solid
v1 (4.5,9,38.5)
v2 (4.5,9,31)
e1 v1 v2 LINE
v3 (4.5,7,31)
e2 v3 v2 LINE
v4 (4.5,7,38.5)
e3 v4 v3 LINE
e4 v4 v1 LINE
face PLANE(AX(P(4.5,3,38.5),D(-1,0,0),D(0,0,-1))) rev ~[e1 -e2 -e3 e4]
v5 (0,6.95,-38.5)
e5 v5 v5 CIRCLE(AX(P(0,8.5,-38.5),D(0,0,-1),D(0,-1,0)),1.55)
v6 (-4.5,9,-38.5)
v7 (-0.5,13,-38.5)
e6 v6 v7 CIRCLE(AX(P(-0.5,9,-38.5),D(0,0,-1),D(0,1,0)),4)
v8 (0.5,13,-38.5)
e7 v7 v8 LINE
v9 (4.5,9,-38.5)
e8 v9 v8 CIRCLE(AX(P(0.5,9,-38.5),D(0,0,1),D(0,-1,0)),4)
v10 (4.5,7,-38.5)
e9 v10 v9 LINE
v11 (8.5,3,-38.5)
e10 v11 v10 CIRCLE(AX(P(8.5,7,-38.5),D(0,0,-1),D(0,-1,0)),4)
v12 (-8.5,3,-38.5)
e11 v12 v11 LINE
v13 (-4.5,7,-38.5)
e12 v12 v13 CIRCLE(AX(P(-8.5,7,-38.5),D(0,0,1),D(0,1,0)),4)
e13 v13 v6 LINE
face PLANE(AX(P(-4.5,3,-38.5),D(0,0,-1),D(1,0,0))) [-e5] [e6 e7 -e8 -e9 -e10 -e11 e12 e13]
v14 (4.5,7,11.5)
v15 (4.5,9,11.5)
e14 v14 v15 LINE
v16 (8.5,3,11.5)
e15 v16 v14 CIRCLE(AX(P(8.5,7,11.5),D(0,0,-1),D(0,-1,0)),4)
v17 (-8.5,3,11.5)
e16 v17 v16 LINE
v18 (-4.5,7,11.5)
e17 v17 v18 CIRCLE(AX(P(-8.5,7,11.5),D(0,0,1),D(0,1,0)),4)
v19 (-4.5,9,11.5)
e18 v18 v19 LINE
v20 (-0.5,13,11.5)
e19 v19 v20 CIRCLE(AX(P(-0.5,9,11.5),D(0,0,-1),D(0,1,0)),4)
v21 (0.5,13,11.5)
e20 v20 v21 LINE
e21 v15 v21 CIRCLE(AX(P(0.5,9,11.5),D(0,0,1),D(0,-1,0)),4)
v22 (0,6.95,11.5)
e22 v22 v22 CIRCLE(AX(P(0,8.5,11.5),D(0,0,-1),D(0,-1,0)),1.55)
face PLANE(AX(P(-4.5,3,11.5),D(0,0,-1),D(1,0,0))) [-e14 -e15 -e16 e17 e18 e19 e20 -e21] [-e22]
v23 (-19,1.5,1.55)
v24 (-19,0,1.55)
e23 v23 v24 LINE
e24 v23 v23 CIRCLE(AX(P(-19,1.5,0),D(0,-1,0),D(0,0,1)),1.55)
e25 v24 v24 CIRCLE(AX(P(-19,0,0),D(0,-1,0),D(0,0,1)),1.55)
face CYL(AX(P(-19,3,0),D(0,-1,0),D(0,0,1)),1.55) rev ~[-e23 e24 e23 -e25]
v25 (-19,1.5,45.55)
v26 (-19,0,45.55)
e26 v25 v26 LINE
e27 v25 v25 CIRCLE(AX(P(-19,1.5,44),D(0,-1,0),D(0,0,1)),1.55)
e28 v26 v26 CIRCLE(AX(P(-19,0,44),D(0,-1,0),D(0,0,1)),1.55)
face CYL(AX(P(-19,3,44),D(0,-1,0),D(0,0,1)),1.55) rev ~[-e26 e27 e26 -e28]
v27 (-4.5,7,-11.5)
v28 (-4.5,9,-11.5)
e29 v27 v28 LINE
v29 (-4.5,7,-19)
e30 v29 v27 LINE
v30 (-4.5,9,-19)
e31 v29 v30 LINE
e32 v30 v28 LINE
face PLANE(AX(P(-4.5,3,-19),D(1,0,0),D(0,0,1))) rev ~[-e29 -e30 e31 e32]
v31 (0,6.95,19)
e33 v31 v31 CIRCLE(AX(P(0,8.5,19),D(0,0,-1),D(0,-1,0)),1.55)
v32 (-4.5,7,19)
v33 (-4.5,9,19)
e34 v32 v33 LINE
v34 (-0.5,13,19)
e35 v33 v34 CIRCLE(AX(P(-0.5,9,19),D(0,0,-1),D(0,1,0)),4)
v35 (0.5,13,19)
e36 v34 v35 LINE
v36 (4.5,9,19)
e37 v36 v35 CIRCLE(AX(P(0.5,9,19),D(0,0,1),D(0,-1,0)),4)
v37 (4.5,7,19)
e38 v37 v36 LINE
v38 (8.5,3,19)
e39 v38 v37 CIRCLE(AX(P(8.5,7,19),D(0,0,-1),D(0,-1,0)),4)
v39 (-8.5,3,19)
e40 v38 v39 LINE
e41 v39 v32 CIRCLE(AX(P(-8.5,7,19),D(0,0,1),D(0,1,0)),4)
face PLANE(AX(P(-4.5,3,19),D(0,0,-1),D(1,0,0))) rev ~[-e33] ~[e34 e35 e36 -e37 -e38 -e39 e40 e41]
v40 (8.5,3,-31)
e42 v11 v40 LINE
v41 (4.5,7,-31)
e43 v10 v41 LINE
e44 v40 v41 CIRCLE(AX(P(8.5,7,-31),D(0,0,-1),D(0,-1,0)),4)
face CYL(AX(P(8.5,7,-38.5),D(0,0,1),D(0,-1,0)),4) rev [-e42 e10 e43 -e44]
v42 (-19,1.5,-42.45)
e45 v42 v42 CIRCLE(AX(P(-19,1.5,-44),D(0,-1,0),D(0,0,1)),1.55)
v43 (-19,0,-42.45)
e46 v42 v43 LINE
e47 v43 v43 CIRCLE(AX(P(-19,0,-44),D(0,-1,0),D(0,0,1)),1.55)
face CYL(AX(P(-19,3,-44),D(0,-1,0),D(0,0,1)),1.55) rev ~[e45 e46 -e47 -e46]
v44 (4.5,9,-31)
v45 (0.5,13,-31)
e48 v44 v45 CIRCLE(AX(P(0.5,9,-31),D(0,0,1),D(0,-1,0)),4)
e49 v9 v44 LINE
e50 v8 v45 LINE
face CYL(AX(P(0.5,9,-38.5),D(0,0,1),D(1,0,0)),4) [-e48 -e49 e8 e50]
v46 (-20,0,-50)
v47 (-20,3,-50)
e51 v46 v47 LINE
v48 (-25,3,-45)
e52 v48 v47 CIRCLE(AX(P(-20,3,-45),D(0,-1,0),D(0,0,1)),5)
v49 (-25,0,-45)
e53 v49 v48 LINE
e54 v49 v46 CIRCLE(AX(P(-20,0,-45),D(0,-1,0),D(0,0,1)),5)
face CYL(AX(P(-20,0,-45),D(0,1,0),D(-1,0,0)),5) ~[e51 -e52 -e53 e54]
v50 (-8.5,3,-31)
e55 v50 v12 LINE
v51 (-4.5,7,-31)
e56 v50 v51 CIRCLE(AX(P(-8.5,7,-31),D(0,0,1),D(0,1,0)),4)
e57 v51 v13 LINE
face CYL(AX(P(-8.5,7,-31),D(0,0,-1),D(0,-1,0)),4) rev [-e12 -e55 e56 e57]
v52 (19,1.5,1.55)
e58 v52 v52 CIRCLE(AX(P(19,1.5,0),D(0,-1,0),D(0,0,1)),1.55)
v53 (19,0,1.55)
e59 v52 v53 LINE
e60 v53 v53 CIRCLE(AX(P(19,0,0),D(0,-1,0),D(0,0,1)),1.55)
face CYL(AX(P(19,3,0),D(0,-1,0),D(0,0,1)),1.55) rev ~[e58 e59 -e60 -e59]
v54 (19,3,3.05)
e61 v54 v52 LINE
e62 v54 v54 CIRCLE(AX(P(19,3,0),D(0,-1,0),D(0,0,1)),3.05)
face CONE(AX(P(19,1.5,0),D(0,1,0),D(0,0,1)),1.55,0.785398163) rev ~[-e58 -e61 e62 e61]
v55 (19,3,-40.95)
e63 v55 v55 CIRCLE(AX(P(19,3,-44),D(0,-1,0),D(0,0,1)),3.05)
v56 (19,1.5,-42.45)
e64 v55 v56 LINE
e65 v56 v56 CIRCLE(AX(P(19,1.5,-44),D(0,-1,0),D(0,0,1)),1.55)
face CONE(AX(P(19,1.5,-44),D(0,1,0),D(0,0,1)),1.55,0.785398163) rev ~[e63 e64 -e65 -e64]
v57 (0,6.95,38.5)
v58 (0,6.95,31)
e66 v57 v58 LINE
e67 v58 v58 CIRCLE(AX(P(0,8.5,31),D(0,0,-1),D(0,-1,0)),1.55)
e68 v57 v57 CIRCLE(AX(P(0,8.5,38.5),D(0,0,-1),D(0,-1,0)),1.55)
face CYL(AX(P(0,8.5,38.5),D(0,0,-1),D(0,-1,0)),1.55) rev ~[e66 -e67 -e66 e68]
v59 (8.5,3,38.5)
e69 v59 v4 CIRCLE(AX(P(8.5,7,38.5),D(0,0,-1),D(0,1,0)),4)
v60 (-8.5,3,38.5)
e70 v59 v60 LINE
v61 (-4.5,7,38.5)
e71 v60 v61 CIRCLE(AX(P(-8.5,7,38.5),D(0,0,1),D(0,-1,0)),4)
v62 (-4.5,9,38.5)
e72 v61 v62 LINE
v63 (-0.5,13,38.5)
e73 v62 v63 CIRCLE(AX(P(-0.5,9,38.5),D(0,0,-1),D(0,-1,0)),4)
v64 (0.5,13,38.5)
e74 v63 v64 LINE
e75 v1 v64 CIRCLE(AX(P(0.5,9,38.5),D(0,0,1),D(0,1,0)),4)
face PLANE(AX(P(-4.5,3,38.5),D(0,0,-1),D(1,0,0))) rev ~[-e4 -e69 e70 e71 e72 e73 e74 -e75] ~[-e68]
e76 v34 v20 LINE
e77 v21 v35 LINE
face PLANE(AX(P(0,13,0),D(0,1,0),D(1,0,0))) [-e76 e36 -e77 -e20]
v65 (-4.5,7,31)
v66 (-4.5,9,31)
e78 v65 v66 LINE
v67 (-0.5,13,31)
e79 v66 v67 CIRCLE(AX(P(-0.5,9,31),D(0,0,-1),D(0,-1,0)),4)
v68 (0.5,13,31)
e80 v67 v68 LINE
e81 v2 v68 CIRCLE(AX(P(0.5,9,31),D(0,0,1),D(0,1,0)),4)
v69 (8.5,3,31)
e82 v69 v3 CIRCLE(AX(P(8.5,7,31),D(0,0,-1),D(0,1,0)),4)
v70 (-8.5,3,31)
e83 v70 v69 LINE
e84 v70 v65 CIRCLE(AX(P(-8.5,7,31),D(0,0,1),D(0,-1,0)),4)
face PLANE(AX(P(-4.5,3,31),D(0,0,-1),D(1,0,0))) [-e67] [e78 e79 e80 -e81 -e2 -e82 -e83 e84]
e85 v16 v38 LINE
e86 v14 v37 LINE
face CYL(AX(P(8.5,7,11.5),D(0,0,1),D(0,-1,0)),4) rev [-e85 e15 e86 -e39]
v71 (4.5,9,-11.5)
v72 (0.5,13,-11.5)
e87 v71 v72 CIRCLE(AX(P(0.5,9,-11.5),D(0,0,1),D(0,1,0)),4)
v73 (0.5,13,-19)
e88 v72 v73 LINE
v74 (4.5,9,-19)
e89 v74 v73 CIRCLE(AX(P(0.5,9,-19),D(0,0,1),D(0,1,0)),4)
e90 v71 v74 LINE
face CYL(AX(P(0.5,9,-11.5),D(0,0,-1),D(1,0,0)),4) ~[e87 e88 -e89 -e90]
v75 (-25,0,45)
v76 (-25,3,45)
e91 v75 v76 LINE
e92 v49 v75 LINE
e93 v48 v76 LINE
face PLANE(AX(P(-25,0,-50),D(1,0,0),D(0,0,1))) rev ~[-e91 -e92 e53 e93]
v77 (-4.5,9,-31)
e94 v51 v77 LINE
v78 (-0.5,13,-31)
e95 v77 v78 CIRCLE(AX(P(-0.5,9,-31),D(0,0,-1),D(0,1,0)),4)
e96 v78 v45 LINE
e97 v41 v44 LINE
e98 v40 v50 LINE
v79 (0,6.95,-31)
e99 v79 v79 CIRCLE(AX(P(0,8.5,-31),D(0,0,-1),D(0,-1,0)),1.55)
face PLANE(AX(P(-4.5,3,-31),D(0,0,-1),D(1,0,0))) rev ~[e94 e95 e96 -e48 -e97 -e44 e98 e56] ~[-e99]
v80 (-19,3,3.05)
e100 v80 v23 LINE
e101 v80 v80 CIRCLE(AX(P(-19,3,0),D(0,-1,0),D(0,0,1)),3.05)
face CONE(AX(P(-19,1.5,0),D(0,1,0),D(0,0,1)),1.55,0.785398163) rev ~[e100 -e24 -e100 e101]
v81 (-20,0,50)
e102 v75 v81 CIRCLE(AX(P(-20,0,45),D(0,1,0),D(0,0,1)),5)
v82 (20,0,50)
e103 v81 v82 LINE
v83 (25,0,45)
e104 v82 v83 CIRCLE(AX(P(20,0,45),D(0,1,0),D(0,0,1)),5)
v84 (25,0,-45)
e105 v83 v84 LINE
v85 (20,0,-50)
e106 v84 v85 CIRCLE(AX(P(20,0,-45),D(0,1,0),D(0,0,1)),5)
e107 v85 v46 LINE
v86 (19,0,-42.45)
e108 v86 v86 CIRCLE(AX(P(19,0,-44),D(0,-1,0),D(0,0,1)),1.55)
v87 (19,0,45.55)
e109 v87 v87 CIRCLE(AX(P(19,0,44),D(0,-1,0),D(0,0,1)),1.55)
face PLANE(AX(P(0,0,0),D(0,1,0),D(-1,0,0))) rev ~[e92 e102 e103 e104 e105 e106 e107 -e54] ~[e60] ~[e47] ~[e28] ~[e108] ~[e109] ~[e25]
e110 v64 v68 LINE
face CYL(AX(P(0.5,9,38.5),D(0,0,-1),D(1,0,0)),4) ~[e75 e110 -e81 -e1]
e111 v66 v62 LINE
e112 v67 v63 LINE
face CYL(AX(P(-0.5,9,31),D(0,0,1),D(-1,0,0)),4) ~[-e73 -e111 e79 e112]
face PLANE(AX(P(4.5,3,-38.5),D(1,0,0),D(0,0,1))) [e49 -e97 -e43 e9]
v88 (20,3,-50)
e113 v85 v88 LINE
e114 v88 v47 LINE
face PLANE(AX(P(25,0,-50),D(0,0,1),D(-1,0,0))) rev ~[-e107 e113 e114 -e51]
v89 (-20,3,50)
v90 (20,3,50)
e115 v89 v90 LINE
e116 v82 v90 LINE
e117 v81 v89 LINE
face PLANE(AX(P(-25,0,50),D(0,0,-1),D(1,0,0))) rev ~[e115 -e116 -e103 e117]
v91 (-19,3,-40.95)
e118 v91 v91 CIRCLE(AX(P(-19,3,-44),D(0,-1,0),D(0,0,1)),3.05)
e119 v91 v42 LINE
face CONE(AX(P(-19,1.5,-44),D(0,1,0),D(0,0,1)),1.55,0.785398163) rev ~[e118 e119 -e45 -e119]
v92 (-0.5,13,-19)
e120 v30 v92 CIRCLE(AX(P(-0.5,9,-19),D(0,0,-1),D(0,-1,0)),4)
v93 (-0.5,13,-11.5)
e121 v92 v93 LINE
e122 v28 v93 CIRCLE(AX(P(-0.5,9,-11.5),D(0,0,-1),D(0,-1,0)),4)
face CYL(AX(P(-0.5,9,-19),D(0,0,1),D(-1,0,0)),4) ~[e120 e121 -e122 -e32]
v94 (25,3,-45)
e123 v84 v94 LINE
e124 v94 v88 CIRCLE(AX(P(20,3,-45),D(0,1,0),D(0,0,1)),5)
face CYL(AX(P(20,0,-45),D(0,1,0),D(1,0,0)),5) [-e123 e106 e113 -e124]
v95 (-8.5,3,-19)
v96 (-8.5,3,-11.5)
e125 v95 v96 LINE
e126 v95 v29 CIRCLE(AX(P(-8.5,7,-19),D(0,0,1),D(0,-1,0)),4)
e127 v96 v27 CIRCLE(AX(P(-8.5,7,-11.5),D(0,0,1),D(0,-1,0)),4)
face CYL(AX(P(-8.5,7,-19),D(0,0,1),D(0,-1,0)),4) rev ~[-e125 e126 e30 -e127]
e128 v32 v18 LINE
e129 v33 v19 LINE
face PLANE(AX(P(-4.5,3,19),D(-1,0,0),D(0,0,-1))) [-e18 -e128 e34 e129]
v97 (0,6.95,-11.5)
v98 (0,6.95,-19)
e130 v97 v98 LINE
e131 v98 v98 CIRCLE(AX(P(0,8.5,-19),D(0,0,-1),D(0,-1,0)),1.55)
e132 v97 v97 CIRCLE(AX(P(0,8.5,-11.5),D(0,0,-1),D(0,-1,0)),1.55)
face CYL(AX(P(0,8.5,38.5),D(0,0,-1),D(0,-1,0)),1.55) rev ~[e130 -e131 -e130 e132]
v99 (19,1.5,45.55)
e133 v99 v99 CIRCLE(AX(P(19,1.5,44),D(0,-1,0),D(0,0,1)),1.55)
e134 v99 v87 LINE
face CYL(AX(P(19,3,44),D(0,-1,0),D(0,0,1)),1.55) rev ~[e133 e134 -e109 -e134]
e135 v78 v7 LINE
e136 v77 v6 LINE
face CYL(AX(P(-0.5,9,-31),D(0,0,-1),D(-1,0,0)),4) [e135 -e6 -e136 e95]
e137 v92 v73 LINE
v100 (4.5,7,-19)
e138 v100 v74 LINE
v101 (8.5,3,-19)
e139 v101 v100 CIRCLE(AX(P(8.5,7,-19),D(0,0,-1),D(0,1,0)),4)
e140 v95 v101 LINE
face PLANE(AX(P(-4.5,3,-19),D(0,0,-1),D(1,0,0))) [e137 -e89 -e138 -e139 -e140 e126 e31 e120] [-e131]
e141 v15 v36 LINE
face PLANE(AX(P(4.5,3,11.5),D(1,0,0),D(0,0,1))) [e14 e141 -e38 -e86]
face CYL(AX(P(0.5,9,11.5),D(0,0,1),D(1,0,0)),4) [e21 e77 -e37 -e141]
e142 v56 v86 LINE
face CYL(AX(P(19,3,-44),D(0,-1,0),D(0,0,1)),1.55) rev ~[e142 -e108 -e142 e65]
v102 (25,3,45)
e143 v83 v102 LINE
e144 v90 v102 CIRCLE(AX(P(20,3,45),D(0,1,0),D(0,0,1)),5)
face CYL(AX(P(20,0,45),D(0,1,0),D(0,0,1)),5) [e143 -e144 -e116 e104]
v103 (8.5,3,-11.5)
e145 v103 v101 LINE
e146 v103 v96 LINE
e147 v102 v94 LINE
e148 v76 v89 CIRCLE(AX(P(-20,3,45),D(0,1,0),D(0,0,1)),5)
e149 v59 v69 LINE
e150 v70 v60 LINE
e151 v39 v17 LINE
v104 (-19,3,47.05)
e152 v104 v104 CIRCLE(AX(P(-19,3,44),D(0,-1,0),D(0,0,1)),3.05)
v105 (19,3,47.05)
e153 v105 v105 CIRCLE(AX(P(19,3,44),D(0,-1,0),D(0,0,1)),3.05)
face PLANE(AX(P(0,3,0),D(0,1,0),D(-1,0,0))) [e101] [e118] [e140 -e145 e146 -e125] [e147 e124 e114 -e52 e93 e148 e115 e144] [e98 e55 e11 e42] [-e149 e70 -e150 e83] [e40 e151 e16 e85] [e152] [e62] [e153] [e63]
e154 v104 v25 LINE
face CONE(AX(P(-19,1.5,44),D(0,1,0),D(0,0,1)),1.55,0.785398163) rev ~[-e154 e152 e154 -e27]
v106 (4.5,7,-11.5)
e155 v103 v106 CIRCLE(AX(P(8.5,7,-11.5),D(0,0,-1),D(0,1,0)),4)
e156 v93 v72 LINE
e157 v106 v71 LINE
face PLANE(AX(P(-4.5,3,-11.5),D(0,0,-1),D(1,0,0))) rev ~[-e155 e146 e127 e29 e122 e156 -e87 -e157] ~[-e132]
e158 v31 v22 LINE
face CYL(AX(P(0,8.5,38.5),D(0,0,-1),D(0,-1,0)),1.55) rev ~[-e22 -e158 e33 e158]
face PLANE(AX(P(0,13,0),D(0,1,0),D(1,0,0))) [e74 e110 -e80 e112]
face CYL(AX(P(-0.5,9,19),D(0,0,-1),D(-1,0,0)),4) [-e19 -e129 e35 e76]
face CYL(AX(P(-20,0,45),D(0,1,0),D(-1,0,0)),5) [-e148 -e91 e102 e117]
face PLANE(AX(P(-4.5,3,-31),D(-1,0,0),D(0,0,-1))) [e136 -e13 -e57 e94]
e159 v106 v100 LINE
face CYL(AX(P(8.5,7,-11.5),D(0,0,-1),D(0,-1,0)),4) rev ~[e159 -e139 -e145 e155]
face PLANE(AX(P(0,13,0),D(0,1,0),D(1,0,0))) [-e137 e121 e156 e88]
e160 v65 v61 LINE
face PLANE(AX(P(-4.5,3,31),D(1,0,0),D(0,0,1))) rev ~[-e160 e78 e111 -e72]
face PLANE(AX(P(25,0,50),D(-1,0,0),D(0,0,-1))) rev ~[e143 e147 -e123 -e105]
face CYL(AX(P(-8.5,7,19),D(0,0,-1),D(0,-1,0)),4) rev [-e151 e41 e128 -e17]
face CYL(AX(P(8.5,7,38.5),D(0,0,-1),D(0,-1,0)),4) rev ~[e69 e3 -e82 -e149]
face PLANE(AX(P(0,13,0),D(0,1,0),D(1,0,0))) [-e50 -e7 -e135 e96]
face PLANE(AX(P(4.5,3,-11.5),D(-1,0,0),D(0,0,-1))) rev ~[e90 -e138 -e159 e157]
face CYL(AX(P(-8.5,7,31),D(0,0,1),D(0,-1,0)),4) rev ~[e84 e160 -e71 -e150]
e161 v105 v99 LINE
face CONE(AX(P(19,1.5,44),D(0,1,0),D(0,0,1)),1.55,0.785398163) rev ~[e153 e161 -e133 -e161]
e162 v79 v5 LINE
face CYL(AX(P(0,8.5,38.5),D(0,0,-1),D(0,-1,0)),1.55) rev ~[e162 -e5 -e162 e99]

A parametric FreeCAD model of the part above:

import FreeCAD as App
import Part
import Sketcher

V = App.Vector
Q = App.Units.Quantity


def edges_at(feature, points):
    """Names of the edges that pass closest to the given points."""
    edges = feature.Shape.Edges
    near = lambda p: min(range(len(edges)), key=lambda i: edges[i].distToShape(Part.Vertex(*p))[0])
    return sorted({f"Edge{near(p) + 1}" for p in points})

doc = App.newDocument("Part")
body = doc.addObject("PartDesign::Body", "Body")

# Sketch on XZ plane
sketch1 = body.newObject("Sketcher::SketchObject", "Sketch")
sketch1.AttachmentSupport = (doc.getObject("XZ_Plane"), [""])
sketch1.MapMode = "FlatFace"
sketch1.addGeometry([
    Part.LineSegment(V(-25, -50, 0), V(-25, 50, 0)),
    Part.LineSegment(V(-25, 50, 0), V(25, 50, 0)),
    Part.LineSegment(V(25, 50, 0), V(25, -50, 0)),
    Part.LineSegment(V(25, -50, 0), V(-25, -50, 0)),
], False)
sketch1.addConstraint([
    Sketcher.Constraint("Coincident", 0, 2, 1, 1),
    Sketcher.Constraint("Coincident", 1, 2, 2, 1),
    Sketcher.Constraint("Coincident", 2, 2, 3, 1),
    Sketcher.Constraint("Coincident", 3, 2, 0, 1),
    Sketcher.Constraint("Vertical", 0),
    Sketcher.Constraint("Horizontal", 1),
    Sketcher.Constraint("Vertical", 2),
    Sketcher.Constraint("Horizontal", 3),
    Sketcher.Constraint("Symmetric", 0, 2, 2, 2, -1, 1),
    Sketcher.Constraint("DistanceX", 1, 1, 1, 2, Q("50 mm")),
    Sketcher.Constraint("DistanceY", 0, 1, 0, 2, Q("100 mm")),
])
pad1 = body.newObject("PartDesign::Pad", "Pad")
pad1.Profile = sketch1
pad1.Length = 3
pad1.Reversed = True

# Sketch on XZ plane
sketch2 = body.newObject("Sketcher::SketchObject", "Sketch001")
sketch2.AttachmentSupport = (doc.getObject("XZ_Plane"), [""])
sketch2.MapMode = "FlatFace"
sketch2.AttachmentOffset = App.Placement(V(0, 0, -3), App.Rotation())
sketch2.addGeometry([
    Part.LineSegment(V(4, 31, 0), V(-4, 31, 0)),  # 0
    Part.LineSegment(V(-4, 31, 0), V(-4, 38, 0)),  # 1
    Part.LineSegment(V(-4, 38, 0), V(4, 38, 0)),  # 2
    Part.LineSegment(V(4, 38, 0), V(4, 31, 0)),  # 3
    Part.LineSegment(V(-4, 12, 0), V(-4, 19, 0)),  # 4
    Part.LineSegment(V(-4, 19, 0), V(4, 19, 0)),  # 5
    Part.LineSegment(V(4, 19, 0), V(4, 12, 0)),  # 6
    Part.LineSegment(V(4, 12, 0), V(-4, 12, 0)),  # 7
    Part.LineSegment(V(-4, -38, 0), V(-4, -31, 0)),  # 8
    Part.LineSegment(V(-4, -31, 0), V(4, -31, 0)),  # 9
    Part.LineSegment(V(4, -31, 0), V(4, -38, 0)),  # 10
    Part.LineSegment(V(4, -38, 0), V(-4, -38, 0)),  # 11
    Part.LineSegment(V(4, -19, 0), V(-4, -19, 0)),  # 12
    Part.LineSegment(V(-4, -19, 0), V(-4, -12, 0)),  # 13
    Part.LineSegment(V(-4, -12, 0), V(4, -12, 0)),  # 14
    Part.LineSegment(V(4, -12, 0), V(4, -19, 0)),  # 15
], False)
sketch2.addConstraint([
    Sketcher.Constraint("Coincident", 0, 2, 1, 1),
    Sketcher.Constraint("Coincident", 1, 2, 2, 1),
    Sketcher.Constraint("Coincident", 2, 2, 3, 1),
    Sketcher.Constraint("Coincident", 3, 2, 0, 1),
    Sketcher.Constraint("Coincident", 4, 2, 5, 1),
    Sketcher.Constraint("Coincident", 5, 2, 6, 1),
    Sketcher.Constraint("Coincident", 6, 2, 7, 1),
    Sketcher.Constraint("Coincident", 7, 2, 4, 1),
    Sketcher.Constraint("Coincident", 8, 2, 9, 1),
    Sketcher.Constraint("Coincident", 9, 2, 10, 1),
    Sketcher.Constraint("Coincident", 10, 2, 11, 1),
    Sketcher.Constraint("Coincident", 11, 2, 8, 1),
    Sketcher.Constraint("Coincident", 12, 2, 13, 1),
    Sketcher.Constraint("Coincident", 13, 2, 14, 1),
    Sketcher.Constraint("Coincident", 14, 2, 15, 1),
    Sketcher.Constraint("Coincident", 15, 2, 12, 1),
    Sketcher.Constraint("Horizontal", 0),
    Sketcher.Constraint("Vertical", 1),
    Sketcher.Constraint("Horizontal", 2),
    Sketcher.Constraint("Vertical", 3),
    Sketcher.Constraint("Vertical", 4),
    Sketcher.Constraint("Horizontal", 5),
    Sketcher.Constraint("Vertical", 6),
    Sketcher.Constraint("Horizontal", 7),
    Sketcher.Constraint("Vertical", 8),
    Sketcher.Constraint("Horizontal", 9),
    Sketcher.Constraint("Vertical", 10),
    Sketcher.Constraint("Horizontal", 11),
    Sketcher.Constraint("Horizontal", 12),
    Sketcher.Constraint("Vertical", 13),
    Sketcher.Constraint("Horizontal", 14),
    Sketcher.Constraint("Vertical", 15),
    Sketcher.Constraint("Symmetric", 3, 2, 8, 2, -1, 1),
    Sketcher.Constraint("Symmetric", 1, 2, 10, 2, -1, 1),
    Sketcher.Constraint("Symmetric", 5, 2, 12, 2, -1, 1),
    Sketcher.Constraint("Symmetric", 7, 2, 14, 2, -1, 1),
    Sketcher.Constraint("Vertical", 1, 2, 4, 2),
    Sketcher.Constraint("Vertical", 3, 2, 5, 2),
    Sketcher.Constraint("Vertical", 7, 2, 8, 2),
    Sketcher.Constraint("Equal", 3, 4),
    Sketcher.Constraint("DistanceX", 0, 2, 0, 1, Q("9 mm")),
    Sketcher.Constraint("DistanceY", 1, 1, 1, 2, Q("7.5 mm")),
    Sketcher.Constraint("DistanceY", 6, 2, 2, 2, Q("27 mm")),
    Sketcher.Constraint("DistanceY", 8, 2, 4, 2, Q("50 mm")),
])
pad2 = body.newObject("PartDesign::Pad", "Pad001")
pad2.Profile = sketch2
pad2.Length = 10
pad2.Reversed = True

# Sketch on XY plane
sketch3 = body.newObject("Sketcher::SketchObject", "Sketch002")
sketch3.AttachmentSupport = (doc.getObject("XY_Plane"), [""])
sketch3.MapMode = "FlatFace"
sketch3.AttachmentOffset = App.Placement(V(0, 0, 38.5), App.Rotation())
sketch3.addGeometry(Part.Circle(V(0, 8.5, 0), V(0, 0, 1), 1.6), False)
sketch3.addConstraint([
    Sketcher.Constraint("PointOnObject", 0, 3, -2),
    Sketcher.Constraint("Diameter", 0, Q("3.1 mm")),
    Sketcher.Constraint("DistanceY", -1, 1, 0, 3, Q("8.5 mm")),
])
doc.recompute()
hole = body.newObject("PartDesign::Hole", "Hole")
hole.Profile = sketch3
hole.ThreadType = "None"
hole.Diameter = 3.1
hole.DepthType = "ThroughAll"
doc.recompute()

fillet = body.newObject("PartDesign::Fillet", "Fillet")
fillet.Base = (hole, edges_at(hole, [
    (-4.5, 13, 34.75),
    (4.5, 13, 34.75),
    (-4.5, 13, 15.25),
    (4.5, 13, 15.25),
    (-4.5, 13, -15.25),
    (4.5, 13, -15.25),
    (-4.5, 13, -34.75),
    (4.5, 13, -34.75),
    (-4.5, 3, -34.75),
    (-4.5, 3, -15.25),
    (-4.5, 3, 15.25),
    (-4.5, 3, 34.75),
    (4.5, 3, 34.75),
    (4.5, 3, 15.25),
    (4.5, 3, -15.25),
    (4.5, 3, -34.75),
]))
fillet.Radius = 4

# Sketch on XZ plane
sketch4 = body.newObject("Sketcher::SketchObject", "Sketch003")
sketch4.AttachmentSupport = (doc.getObject("XZ_Plane"), [""])
sketch4.MapMode = "FlatFace"
sketch4.AttachmentOffset = App.Placement(V(0, 0, -3), App.Rotation())
sketch4.addGeometry([
    Part.Circle(V(-19, 44, 0), V(0, 0, 1), 1.6),  # 0
    Part.Circle(V(-19, 0, 0), V(0, 0, 1), 1.6),  # 1
    Part.Circle(V(-19, -44, 0), V(0, 0, 1), 1.6),  # 2
    Part.Circle(V(19, 44, 0), V(0, 0, 1), 1.6),  # 3
    Part.Circle(V(19, 0, 0), V(0, 0, 1), 1.6),  # 4
    Part.Circle(V(19, -44, 0), V(0, 0, 1), 1.6),  # 5
], False)
sketch4.addConstraint([
    Sketcher.Constraint("Equal", 0, 1),
    Sketcher.Constraint("Equal", 1, 2),
    Sketcher.Constraint("Equal", 2, 3),
    Sketcher.Constraint("Equal", 3, 4),
    Sketcher.Constraint("Equal", 4, 5),
    Sketcher.Constraint("Symmetric", 2, 3, 3, 3, -1, 1),
    Sketcher.Constraint("Symmetric", 1, 3, 4, 3, -1, 1),
    Sketcher.Constraint("Symmetric", 0, 3, 5, 3, -1, 1),
    Sketcher.Constraint("Symmetric", 0, 3, 3, 3, -2),
    Sketcher.Constraint("PointOnObject", 1, 3, -1),
    Sketcher.Constraint("Vertical", 0, 3, 1, 3),
    Sketcher.Constraint("Diameter", 0, Q("3.1 mm")),
    Sketcher.Constraint("DistanceX", 0, 3, -1, 1, Q("19 mm")),
    Sketcher.Constraint("DistanceY", -1, 1, 0, 3, Q("44 mm")),
])
doc.recompute()
hole2 = body.newObject("PartDesign::Hole", "Hole001")
hole2.Profile = sketch4
hole2.ThreadType = "None"
hole2.Diameter = 3.1
hole2.DepthType = "ThroughAll"
hole2.Reversed = True
doc.recompute()

chamfer = body.newObject("PartDesign::Chamfer", "Chamfer")
chamfer.Base = (hole2, edges_at(hole2, [
    (19, 3, -45.55),
    (19, 3, -1.55),
    (-19, 3, -45.55),
    (19, 3, 42.45),
    (-19, 3, -1.55),
    (-19, 3, 42.45),
]))
chamfer.Size = 1.5
doc.recompute()

fillet2 = body.newObject("PartDesign::Fillet", "Fillet001")
fillet2.Base = (chamfer, edges_at(chamfer, [
    (25, 1.5, 50),
    (-25, 1.5, 50),
    (-25, 1.5, -50),
    (25, 1.5, -50),
]))
fillet2.Radius = 5

doc.recompute()
